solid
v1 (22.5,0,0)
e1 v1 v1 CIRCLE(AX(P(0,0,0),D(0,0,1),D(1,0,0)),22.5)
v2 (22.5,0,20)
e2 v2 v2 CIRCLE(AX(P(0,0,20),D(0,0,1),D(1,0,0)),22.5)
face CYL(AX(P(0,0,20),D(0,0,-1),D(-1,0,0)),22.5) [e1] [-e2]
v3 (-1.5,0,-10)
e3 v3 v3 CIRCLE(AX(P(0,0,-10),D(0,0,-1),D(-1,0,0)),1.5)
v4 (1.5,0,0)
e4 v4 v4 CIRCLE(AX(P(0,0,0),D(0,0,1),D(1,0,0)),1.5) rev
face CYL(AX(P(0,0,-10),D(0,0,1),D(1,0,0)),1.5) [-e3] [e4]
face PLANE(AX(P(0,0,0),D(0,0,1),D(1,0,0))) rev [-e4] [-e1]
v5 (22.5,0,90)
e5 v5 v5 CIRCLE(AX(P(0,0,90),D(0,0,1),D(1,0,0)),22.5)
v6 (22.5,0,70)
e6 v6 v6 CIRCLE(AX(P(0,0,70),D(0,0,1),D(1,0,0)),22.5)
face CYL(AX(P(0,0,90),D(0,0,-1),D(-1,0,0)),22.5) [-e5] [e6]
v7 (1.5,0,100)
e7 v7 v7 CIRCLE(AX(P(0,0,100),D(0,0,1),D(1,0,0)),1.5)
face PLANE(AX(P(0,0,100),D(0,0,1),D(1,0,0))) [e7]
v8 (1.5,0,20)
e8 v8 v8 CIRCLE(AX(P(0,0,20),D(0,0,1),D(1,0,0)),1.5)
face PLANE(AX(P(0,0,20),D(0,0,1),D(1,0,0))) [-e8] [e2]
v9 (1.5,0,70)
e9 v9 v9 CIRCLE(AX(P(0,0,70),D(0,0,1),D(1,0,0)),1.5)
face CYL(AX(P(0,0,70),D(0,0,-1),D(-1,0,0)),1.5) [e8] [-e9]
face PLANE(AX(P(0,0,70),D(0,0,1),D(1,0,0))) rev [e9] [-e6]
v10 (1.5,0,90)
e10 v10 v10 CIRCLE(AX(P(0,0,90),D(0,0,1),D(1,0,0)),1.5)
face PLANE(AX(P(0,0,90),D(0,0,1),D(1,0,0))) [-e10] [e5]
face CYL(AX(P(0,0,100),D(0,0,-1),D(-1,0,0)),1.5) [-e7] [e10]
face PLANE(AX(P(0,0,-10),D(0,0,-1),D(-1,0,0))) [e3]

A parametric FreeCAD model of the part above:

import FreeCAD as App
import Part
import Sketcher
from FreeCAD import Vector
Q = App.Units.Quantity

doc = App.newDocument("Part")
body = doc.addObject("PartDesign::Body", "Body")

# Sketch on XY plane
sketch1 = doc.addObject("Sketcher::SketchObject", "Sketch")
body.addObject(sketch1)
sketch1.AttachmentSupport = (doc.XY_Plane, [""])
sketch1.MapMode = "FlatFace"
sketch1.addGeometry(Part.Circle(Vector(0, 0, 0), Vector(0, 0, 1), 22), False)
sketch1.addConstraint([
    Sketcher.Constraint("Coincident", 0, 3, -1, 1),
    Sketcher.Constraint("Diameter", 0, Q("45 mm")),
])
pad1 = doc.addObject("PartDesign::Pad", "Pad")
body.addObject(pad1)
pad1.Profile = sketch1
pad1.Length = 20

# Sketch on XY plane
sketch2 = doc.addObject("Sketcher::SketchObject", "Sketch001")
body.addObject(sketch2)
sketch2.AttachmentSupport = (doc.XY_Plane, [""])
sketch2.MapMode = "FlatFace"
sketch2.AttachmentOffset = App.Placement(Vector(0, 0, 20), App.Rotation())
sketch2.addGeometry(Part.Circle(Vector(0, 0, 0), Vector(0, 0, 1), 1.5), False)
sketch2.addConstraint([
    Sketcher.Constraint("Coincident", 0, 3, -1, 1),
    Sketcher.Constraint("Diameter", 0, Q("3 mm")),
])
pad2 = doc.addObject("PartDesign::Pad", "Pad001")
body.addObject(pad2)
pad2.Profile = sketch2
pad2.Length = 50

# Sketch on XY plane
sketch3 = doc.addObject("Sketcher::SketchObject", "Sketch002")
body.addObject(sketch3)
sketch3.AttachmentSupport = (doc.XY_Plane, [""])
sketch3.MapMode = "FlatFace"
sketch3.AttachmentOffset = App.Placement(Vector(0, 0, 70), App.Rotation())
sketch3.addGeometry(Part.Circle(Vector(0, 0, 0), Vector(0, 0, 1), 22), False)
sketch3.addConstraint([
    Sketcher.Constraint("Coincident", 0, 3, -1, 1),
    Sketcher.Constraint("Diameter", 0, Q("45 mm")),
])
pad3 = doc.addObject("PartDesign::Pad", "Pad002")
body.addObject(pad3)
pad3.Profile = sketch3
pad3.Length = 20

# Sketch on XY plane
sketch4 = doc.addObject("Sketcher::SketchObject", "Sketch003")
body.addObject(sketch4)
sketch4.AttachmentSupport = (doc.XY_Plane, [""])
sketch4.MapMode = "FlatFace"
sketch4.AttachmentOffset = App.Placement(Vector(0, 0, 90), App.Rotation())
sketch4.addGeometry(Part.Circle(Vector(0, 0, 0), Vector(0, 0, 1), 1.5), False)
sketch4.addConstraint([
    Sketcher.Constraint("Coincident", 0, 3, -1, 1),
    Sketcher.Constraint("Diameter", 0, Q("3 mm")),
])
pad4 = doc.addObject("PartDesign::Pad", "Pad003")
body.addObject(pad4)
pad4.Profile = sketch4
pad4.Length = 10

# Sketch on XY plane
sketch5 = doc.addObject("Sketcher::SketchObject", "Sketch004")
body.addObject(sketch5)
sketch5.AttachmentSupport = (doc.XY_Plane, [""])
sketch5.MapMode = "FlatFace"
sketch5.AttachmentOffset = App.Placement(Vector(0, 0, -10), App.Rotation())
sketch5.addGeometry(Part.Circle(Vector(0, 0, 0), Vector(0, 0, 1), 1.5), False)
sketch5.addConstraint([
    Sketcher.Constraint("Coincident", 0, 3, -1, 1),
    Sketcher.Constraint("Diameter", 0, Q("3 mm")),
])
pad5 = doc.addObject("PartDesign::Pad", "Pad004")
body.addObject(pad5)
pad5.Profile = sketch5
pad5.Length = 10

doc.recompute()
